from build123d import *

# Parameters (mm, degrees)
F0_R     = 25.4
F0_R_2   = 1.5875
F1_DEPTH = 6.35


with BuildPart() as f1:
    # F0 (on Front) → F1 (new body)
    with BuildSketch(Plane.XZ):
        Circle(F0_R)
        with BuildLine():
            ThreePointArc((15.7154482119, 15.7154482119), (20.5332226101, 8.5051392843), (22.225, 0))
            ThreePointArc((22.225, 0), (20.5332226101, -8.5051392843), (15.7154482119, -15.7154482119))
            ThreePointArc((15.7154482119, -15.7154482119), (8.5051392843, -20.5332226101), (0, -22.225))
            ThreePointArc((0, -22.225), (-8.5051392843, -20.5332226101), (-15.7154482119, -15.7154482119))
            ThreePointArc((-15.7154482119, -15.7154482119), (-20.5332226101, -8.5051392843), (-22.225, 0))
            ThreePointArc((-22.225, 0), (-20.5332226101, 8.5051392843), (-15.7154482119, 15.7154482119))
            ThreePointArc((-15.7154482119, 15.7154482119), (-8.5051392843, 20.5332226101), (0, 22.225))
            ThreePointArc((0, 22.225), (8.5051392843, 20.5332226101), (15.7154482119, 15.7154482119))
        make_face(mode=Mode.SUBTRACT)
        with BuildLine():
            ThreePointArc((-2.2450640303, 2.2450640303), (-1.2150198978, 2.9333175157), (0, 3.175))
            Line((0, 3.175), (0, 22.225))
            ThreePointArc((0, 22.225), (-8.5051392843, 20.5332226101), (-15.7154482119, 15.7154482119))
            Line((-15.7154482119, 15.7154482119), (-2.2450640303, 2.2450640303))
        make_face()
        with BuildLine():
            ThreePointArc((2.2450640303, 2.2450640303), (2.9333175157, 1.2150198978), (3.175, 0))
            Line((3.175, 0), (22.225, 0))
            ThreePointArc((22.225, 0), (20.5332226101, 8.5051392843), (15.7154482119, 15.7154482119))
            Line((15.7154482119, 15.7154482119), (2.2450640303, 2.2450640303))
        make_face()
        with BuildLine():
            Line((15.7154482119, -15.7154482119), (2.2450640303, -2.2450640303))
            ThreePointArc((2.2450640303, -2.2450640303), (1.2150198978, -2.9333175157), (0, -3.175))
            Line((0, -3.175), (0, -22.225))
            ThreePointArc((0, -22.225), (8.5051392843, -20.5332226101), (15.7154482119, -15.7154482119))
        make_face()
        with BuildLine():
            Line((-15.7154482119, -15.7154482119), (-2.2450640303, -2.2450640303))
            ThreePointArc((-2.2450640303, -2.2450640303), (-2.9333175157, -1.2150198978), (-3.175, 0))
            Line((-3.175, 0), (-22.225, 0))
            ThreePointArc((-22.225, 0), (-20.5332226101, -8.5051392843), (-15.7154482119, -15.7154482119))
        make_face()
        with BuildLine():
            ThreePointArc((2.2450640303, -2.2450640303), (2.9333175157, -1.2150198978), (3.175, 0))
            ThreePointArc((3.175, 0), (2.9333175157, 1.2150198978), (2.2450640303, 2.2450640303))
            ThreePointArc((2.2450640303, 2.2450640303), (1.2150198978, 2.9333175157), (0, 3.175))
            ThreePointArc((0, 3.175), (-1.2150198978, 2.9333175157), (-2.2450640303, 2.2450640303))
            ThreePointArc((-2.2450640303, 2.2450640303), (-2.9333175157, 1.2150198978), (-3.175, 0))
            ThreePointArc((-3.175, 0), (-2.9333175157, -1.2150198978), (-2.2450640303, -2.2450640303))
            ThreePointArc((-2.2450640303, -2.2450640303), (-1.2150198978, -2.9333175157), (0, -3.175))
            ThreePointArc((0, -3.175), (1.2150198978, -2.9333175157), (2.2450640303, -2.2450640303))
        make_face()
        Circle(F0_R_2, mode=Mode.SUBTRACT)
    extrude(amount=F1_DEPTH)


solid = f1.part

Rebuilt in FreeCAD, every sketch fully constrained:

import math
import FreeCAD as App
import Part
import Sketcher
Q = App.Units.Quantity

doc = App.newDocument("Part")
body = doc.addObject("PartDesign::Body", "Body")

# Sketch on XZ plane
sketch1 = body.newObject("Sketcher::SketchObject", "Sketch")
sketch1.AttachmentSupport = (doc.getObject("XZ_Plane"), [""])
sketch1.MapMode = "FlatFace"
sketch1.addGeometry([
    Part.Circle(App.Vector(0, 0, 0), App.Vector(0, 0, 1), 25.4),  # 0
    Part.LineSegment(App.Vector(0, -3.175, 0), App.Vector(0, -22.225, 0)),  # 1
    Part.ArcOfCircle(Part.Circle(App.Vector(0, 0, 0), App.Vector(0, 0, 1), 22.225), math.radians(-135), math.radians(-90)),  # 2
    Part.LineSegment(App.Vector(-15.715448, -15.715448, 0), App.Vector(-2.245064, -2.245064, 0)),  # 3
    Part.ArcOfCircle(Part.Circle(App.Vector(0, 0, 0), App.Vector(0, 0, 1), 3.175), math.radians(-135), math.radians(-90)),  # 4
    Part.LineSegment(App.Vector(3.175, 0, 0), App.Vector(22.225, 0, 0)),  # 5
    Part.ArcOfCircle(Part.Circle(App.Vector(0, 0, 0), App.Vector(0, 0, 1), 22.225), math.radians(-45), math.radians(0)),  # 6
    Part.LineSegment(App.Vector(15.715448, -15.715448, 0), App.Vector(2.245064, -2.245064, 0)),  # 7
    Part.ArcOfCircle(Part.Circle(App.Vector(0, 0, 0), App.Vector(0, 0, 1), 3.175), math.radians(-45), math.radians(0)),  # 8
    Part.LineSegment(App.Vector(-3.175, 0, 0), App.Vector(-22.225, 0, 0)),  # 9
    Part.ArcOfCircle(Part.Circle(App.Vector(0, 0, 0), App.Vector(0, 0, 1), 22.225), math.radians(135), math.radians(180)),  # 10
    Part.LineSegment(App.Vector(-15.715448, 15.715448, 0), App.Vector(-2.245064, 2.245064, 0)),  # 11
    Part.ArcOfCircle(Part.Circle(App.Vector(0, 0, 0), App.Vector(0, 0, 1), 3.175), math.radians(135), math.radians(180)),  # 12
    Part.Circle(App.Vector(0, 0, 0), App.Vector(0, 0, 1), 1.5875),  # 13
    Part.ArcOfCircle(Part.Circle(App.Vector(0, 0, 0), App.Vector(0, 0, 1), 22.225), math.radians(45), math.radians(90)),  # 14
    Part.LineSegment(App.Vector(15.715448, 15.715448, 0), App.Vector(2.245064, 2.245064, 0)),  # 15
    Part.ArcOfCircle(Part.Circle(App.Vector(0, 0, 0), App.Vector(0, 0, 1), 3.175), math.radians(45), math.radians(90)),  # 16
    Part.LineSegment(App.Vector(0, 3.175, 0), App.Vector(0, 22.225, 0)),  # 17
], False)
sketch1.addConstraint([
    Sketcher.Constraint("Coincident", 1, 2, 2, 2),
    Sketcher.Constraint("Coincident", 2, 1, 3, 1),
    Sketcher.Constraint("Coincident", 3, 2, 4, 1),
    Sketcher.Constraint("Coincident", 4, 2, 1, 1),
    Sketcher.Constraint("Coincident", 5, 2, 6, 2),
    Sketcher.Constraint("Coincident", 6, 1, 7, 1),
    Sketcher.Constraint("Coincident", 7, 2, 8, 1),
    Sketcher.Constraint("Coincident", 8, 2, 5, 1),
    Sketcher.Constraint("Coincident", 9, 2, 10, 2),
    Sketcher.Constraint("Coincident", 10, 1, 11, 1),
    Sketcher.Constraint("Coincident", 11, 2, 12, 1),
    Sketcher.Constraint("Coincident", 12, 2, 9, 1),
    Sketcher.Constraint("Coincident", 14, 1, 15, 1),
    Sketcher.Constraint("Coincident", 15, 2, 16, 1),
    Sketcher.Constraint("Coincident", 16, 2, 17, 1),
    Sketcher.Constraint("Coincident", 17, 2, 14, 2),
    Sketcher.Constraint("Vertical", 1),
    Sketcher.Constraint("Horizontal", 5),
    Sketcher.Constraint("Horizontal", 9),
    Sketcher.Constraint("Vertical", 17),
    Sketcher.Constraint("Coincident", 0, 3, -1, 1),
    Sketcher.Constraint("Coincident", 2, 3, -1, 1),
    Sketcher.Constraint("Coincident", 4, 3, -1, 1),
    Sketcher.Constraint("Coincident", 6, 3, -1, 1),
    Sketcher.Constraint("Coincident", 8, 3, -1, 1),
    Sketcher.Constraint("Coincident", 10, 3, -1, 1),
    Sketcher.Constraint("Coincident", 12, 3, -1, 1),
    Sketcher.Constraint("Coincident", 13, 3, -1, 1),
    Sketcher.Constraint("Coincident", 14, 3, -1, 1),
    Sketcher.Constraint("Coincident", 16, 3, -1, 1),
    Sketcher.Constraint("Equal", 2, 6),
    Sketcher.Constraint("Equal", 4, 8),
    Sketcher.Constraint("Equal", 6, 10),
    Sketcher.Constraint("Equal", 8, 12),
    Sketcher.Constraint("Equal", 10, 14),
    Sketcher.Constraint("Equal", 12, 16),
    Sketcher.Constraint("PointOnObject", 1, 2, -2),
    Sketcher.Constraint("PointOnObject", 5, 2, -1),
    Sketcher.Constraint("PointOnObject", 9, 2, -1),
    Sketcher.Constraint("PointOnObject", 16, 2, -2),
    Sketcher.Constraint("Perpendicular", 3, 7),
    Sketcher.Constraint("Parallel", 7, 11),
    Sketcher.Constraint("Perpendicular", 11, 15),
    Sketcher.Constraint("Horizontal", 2, 1, 6, 1),
    Sketcher.Constraint("Horizontal", 3, 2, 7, 2),
    Sketcher.Constraint("Horizontal", 10, 1, 14, 1),
    Sketcher.Constraint("Vertical", 2, 1, 10, 1),
    Sketcher.Constraint("Diameter", 0, Q("2 in")),
    Sketcher.Constraint("Diameter", 13, Q("0.125 in")),
    Sketcher.Constraint("Radius", 2, Q("0.875 in")),
    Sketcher.Constraint("Radius", 4, Q("0.125 in")),
    Sketcher.Constraint("DistanceX", 2, 1, -1, 1, Q("15.715448 mm")),
])
pad1 = body.newObject("PartDesign::Pad", "Pad")
pad1.Profile = sketch1
pad1.Length = Q("0.25 in")

doc.recompute()
